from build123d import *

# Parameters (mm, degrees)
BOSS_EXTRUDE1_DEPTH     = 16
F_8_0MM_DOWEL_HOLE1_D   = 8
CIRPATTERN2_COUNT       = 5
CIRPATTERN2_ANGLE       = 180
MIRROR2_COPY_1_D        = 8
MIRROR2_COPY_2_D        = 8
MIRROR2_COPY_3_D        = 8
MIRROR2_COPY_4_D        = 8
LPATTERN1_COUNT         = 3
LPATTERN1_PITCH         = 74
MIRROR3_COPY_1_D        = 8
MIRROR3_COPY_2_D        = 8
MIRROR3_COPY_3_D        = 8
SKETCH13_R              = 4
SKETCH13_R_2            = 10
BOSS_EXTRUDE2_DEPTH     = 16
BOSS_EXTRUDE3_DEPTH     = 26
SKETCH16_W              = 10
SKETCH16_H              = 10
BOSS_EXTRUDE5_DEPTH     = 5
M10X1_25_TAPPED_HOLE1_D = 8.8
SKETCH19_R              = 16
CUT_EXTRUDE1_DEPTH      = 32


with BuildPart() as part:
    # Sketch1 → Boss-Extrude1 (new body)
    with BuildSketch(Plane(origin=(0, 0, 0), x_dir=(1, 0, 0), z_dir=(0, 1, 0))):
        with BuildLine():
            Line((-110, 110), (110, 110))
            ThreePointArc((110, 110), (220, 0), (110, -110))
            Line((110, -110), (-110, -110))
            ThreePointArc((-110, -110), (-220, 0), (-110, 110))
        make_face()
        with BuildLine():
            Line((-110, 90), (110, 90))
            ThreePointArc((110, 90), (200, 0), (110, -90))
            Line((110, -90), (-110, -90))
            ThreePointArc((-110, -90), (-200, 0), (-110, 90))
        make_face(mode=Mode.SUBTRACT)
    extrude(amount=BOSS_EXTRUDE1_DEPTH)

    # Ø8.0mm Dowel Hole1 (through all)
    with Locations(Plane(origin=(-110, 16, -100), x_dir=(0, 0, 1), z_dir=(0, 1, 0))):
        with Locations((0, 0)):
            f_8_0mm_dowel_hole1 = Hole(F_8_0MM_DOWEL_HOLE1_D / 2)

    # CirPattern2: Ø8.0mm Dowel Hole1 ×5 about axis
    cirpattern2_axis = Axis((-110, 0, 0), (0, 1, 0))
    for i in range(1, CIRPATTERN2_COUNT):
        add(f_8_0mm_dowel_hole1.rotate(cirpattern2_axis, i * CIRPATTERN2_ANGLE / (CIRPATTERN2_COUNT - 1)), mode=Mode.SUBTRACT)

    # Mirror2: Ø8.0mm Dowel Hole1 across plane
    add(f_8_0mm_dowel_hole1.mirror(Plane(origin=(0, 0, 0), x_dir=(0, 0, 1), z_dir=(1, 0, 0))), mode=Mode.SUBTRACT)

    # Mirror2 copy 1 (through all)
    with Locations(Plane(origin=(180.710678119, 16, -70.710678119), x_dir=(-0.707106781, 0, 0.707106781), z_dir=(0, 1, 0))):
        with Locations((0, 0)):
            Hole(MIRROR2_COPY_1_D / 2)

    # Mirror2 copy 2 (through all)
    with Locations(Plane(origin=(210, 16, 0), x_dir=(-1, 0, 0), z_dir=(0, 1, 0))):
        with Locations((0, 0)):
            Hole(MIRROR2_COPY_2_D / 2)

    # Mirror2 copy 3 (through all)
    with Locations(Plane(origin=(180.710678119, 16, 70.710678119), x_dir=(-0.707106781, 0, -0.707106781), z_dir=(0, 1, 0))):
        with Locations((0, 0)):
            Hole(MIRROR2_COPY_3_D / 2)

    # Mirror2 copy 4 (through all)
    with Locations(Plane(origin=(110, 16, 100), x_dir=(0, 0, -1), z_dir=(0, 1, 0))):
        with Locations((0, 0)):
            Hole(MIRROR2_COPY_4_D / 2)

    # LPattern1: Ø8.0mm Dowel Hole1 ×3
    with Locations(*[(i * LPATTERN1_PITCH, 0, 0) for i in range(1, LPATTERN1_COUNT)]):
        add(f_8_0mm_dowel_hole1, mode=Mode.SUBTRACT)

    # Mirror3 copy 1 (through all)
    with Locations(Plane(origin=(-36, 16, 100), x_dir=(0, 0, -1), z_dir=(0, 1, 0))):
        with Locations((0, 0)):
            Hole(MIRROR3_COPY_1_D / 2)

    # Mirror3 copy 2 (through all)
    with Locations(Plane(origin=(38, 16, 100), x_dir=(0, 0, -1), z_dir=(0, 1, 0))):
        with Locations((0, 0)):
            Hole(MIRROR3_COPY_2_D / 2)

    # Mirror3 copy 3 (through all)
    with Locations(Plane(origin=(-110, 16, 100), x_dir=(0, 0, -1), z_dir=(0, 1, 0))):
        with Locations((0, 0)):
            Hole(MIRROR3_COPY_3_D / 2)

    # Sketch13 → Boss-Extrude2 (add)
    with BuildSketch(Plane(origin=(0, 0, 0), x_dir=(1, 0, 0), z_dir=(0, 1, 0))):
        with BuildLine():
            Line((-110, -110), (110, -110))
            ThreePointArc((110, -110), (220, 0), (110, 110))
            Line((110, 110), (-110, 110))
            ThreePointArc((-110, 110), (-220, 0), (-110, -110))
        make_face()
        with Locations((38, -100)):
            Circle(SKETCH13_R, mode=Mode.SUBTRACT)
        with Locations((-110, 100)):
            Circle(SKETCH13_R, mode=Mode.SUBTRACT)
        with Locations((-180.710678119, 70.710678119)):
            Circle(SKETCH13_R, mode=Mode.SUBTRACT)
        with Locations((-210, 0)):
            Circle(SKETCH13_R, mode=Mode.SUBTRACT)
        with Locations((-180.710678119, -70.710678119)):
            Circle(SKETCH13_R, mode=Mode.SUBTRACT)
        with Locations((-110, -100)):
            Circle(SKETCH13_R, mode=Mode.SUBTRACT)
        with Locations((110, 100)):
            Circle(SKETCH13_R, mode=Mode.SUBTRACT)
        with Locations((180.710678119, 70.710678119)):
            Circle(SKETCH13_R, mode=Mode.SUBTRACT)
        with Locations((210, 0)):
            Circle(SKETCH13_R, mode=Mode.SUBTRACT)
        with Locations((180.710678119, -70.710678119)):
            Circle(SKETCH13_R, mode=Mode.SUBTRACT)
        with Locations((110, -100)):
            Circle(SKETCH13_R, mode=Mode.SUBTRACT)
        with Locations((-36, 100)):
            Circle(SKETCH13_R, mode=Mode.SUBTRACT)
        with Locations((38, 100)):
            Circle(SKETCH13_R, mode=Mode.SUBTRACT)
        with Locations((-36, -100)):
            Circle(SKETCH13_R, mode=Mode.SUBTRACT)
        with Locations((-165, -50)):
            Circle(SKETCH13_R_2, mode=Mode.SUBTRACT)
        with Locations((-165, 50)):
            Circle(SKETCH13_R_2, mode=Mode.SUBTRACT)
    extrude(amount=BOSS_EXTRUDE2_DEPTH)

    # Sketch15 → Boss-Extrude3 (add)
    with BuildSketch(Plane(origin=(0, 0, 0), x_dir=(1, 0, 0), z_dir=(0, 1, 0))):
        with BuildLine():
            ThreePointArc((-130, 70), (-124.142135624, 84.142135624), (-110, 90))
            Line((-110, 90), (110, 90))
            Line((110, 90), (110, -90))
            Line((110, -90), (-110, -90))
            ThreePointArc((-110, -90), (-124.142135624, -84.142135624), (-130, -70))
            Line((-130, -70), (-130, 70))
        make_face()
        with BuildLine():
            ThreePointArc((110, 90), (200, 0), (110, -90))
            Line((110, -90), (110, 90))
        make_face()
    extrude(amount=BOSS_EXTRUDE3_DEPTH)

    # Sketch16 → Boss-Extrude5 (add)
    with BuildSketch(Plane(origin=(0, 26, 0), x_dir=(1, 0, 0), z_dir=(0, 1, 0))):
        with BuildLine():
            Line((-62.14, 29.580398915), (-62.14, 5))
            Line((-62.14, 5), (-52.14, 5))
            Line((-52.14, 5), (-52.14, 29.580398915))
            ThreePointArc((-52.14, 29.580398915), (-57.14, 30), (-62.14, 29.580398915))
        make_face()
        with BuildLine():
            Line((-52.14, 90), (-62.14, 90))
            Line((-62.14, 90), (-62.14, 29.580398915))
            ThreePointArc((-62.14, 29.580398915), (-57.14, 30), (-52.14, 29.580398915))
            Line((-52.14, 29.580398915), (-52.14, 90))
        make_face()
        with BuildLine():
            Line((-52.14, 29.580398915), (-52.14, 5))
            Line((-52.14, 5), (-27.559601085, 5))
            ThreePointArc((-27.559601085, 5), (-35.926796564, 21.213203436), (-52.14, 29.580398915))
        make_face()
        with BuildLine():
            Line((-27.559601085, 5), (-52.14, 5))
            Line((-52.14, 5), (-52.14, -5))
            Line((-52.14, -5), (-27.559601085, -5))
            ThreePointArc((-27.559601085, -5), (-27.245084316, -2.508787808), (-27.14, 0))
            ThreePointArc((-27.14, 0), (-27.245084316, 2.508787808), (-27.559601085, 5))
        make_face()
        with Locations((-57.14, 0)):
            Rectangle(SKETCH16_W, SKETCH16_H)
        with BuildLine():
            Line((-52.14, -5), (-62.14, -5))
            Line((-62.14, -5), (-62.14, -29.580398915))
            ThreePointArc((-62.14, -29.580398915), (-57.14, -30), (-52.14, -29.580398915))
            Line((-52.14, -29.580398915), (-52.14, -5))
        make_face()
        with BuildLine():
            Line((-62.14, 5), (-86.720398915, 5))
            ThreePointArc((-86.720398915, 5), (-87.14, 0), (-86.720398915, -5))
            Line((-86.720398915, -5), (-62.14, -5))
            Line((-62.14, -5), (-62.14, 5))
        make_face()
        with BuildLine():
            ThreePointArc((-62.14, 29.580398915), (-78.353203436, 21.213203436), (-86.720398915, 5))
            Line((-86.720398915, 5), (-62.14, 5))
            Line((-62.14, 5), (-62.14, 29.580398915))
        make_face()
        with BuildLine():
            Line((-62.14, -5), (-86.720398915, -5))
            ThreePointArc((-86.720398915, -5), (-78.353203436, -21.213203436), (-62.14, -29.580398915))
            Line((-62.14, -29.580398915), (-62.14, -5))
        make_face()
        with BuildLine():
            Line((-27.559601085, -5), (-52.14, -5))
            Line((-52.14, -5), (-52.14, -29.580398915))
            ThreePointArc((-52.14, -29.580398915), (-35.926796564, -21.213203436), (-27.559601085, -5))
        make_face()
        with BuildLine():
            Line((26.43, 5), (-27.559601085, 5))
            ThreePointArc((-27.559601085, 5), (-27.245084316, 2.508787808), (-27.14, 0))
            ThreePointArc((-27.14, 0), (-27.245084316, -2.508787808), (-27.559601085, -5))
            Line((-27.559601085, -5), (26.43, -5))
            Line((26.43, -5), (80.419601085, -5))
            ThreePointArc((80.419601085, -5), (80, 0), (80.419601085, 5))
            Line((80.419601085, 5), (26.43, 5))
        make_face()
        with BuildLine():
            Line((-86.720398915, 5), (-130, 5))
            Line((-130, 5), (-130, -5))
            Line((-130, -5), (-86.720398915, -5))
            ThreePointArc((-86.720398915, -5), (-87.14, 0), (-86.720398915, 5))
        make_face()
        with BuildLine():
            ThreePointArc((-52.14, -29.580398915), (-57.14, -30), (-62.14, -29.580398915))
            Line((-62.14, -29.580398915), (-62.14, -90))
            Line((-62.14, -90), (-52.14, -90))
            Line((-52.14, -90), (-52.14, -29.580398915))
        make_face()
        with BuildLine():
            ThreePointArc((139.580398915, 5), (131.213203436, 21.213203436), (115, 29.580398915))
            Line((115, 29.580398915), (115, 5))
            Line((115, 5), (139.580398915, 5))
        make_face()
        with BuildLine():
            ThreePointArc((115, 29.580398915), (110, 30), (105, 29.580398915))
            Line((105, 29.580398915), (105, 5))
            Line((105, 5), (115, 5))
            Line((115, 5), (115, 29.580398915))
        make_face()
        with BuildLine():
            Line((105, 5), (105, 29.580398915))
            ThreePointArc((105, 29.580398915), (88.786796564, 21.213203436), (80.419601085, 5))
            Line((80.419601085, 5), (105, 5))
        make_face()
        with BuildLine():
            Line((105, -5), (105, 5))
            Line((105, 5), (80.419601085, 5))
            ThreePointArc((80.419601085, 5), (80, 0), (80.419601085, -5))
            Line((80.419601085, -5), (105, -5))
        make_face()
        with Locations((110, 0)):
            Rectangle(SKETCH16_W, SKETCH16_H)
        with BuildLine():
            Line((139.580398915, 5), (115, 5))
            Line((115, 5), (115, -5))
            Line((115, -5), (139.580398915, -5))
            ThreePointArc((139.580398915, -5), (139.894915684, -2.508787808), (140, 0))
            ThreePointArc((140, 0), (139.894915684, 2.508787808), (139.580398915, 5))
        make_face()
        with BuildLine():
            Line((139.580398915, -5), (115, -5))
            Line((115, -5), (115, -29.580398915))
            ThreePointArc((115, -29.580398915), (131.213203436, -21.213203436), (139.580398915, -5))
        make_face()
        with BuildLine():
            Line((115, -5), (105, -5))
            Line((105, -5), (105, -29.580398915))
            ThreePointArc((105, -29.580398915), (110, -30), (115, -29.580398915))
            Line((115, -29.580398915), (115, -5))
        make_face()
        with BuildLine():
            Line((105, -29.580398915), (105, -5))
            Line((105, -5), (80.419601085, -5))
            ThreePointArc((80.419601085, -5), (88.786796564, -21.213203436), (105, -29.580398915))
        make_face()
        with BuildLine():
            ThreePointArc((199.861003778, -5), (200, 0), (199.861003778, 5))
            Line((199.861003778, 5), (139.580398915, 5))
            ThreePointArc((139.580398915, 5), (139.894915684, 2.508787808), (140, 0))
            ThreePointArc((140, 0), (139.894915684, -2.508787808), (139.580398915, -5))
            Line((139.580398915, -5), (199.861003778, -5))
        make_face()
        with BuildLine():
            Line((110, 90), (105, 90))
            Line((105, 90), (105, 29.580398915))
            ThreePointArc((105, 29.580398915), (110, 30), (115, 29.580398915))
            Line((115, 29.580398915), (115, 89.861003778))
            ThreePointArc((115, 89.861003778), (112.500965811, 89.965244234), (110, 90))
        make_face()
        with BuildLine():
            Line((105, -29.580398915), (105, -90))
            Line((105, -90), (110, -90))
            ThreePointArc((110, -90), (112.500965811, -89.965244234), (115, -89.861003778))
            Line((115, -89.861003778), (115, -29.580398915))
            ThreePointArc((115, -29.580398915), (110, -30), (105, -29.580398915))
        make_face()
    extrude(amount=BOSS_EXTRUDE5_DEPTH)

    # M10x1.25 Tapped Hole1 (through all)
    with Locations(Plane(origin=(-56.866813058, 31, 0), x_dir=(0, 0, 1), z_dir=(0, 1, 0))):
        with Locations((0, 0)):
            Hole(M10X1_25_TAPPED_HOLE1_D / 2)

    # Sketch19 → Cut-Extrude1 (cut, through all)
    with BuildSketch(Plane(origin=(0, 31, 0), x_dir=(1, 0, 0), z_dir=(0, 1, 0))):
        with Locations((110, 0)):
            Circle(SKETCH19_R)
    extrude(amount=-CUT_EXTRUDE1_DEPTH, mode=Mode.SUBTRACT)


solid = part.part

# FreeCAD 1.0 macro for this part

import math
import FreeCAD as App
import Part
import Sketcher

V = App.Vector

doc = App.newDocument("Part")
params = doc.addObject("Spreadsheet::Sheet", "Params")
for row, (alias, value) in enumerate([
    ("sketch1_radius", "110 mm"),
    ("sketch1_radius2", "90 mm"),
    ("sketch1_width", "220 mm"),
    ("pad1_length", "16 mm"),
    ("sketch2_diameter", "8 mm"),
    ("hole_diameter", "8 mm"),
    ("sketch3_diameter", "8 mm"),
    ("hole2_diameter", "8 mm"),
    ("sketch4_diameter", "8 mm"),
    ("hole3_diameter", "8 mm"),
    ("sketch5_diameter", "8 mm"),
    ("hole4_diameter", "8 mm"),
    ("sketch6_diameter", "8 mm"),
    ("hole5_diameter", "8 mm"),
    ("linearpattern_pitch", "74 mm"),
    ("sketch7_diameter", "8 mm"),
    ("hole6_diameter", "8 mm"),
    ("sketch8_diameter", "8 mm"),
    ("hole7_diameter", "8 mm"),
    ("sketch9_diameter", "8 mm"),
    ("hole8_diameter", "8 mm"),
    ("sketch10_diameter", "8 mm"),
    ("sketch10_diameter2", "20 mm"),
    ("sketch10_radius", "110 mm"),
    ("sketch10_width", "220 mm"),
    ("pad2_length", "16 mm"),
    ("sketch11_radius", "20 mm"),
    ("sketch11_radius2", "90 mm"),
    ("sketch11_width", "220 mm"),
    ("pad3_length", "26 mm"),
    ("sketch12_radius", "30 mm"),
    ("sketch12_radius2", "89.999999 mm"),
    ("sketch12_width", "10 mm"),
    ("pad4_length", "5 mm"),
    ("sketch13_diameter", "8.8 mm"),
    ("hole9_diameter", "8.8 mm"),
    ("sketch14_diameter", "32 mm"),
], start=1):
    params.set(f"A{row}", alias)
    params.set(f"B{row}", "=" + value)
    params.setAlias(f"B{row}", alias)

body = doc.addObject("PartDesign::Body", "Body")

# Sketch on XZ plane
sketch1 = doc.addObject("Sketcher::SketchObject", "Sketch")
body.addObject(sketch1)
sketch1.AttachmentSupport = (doc.XZ_Plane, [""])
sketch1.MapMode = "FlatFace"
sketch1.addGeometry(Part.LineSegment(V(110, -110, 0), V(-110, -110, 0)), False)
sketch1.addGeometry(Part.ArcOfCircle(Part.Circle(V(-110, 0, 0), V(0, 0, 1), 110), math.radians(90), math.radians(270)), False)
sketch1.addGeometry(Part.LineSegment(V(-110, 110, 0), V(110, 110, 0)), False)
sketch1.addGeometry(Part.ArcOfCircle(Part.Circle(V(110, 0, 0), V(0, 0, 1), 110), math.radians(-90), math.radians(90)), False)
sketch1.addGeometry(Part.LineSegment(V(-110, -90, 0), V(110, -90, 0)), False)
sketch1.addGeometry(Part.ArcOfCircle(Part.Circle(V(110, 0, 0), V(0, 0, 1), 90), math.radians(-90), math.radians(90)), False)
sketch1.addGeometry(Part.LineSegment(V(110, 90, 0), V(-110, 90, 0)), False)
sketch1.addGeometry(Part.ArcOfCircle(Part.Circle(V(-110, 0, 0), V(0, 0, 1), 90), math.radians(90), math.radians(270)), False)
sketch1.addConstraint(Sketcher.Constraint("Tangent", 0, 2, 1, 2))
sketch1.addConstraint(Sketcher.Constraint("Tangent", 1, 1, 2, 1))
sketch1.addConstraint(Sketcher.Constraint("Tangent", 2, 2, 3, 2))
sketch1.addConstraint(Sketcher.Constraint("Tangent", 3, 1, 0, 1))
sketch1.addConstraint(Sketcher.Constraint("Tangent", 4, 2, 5, 1))
sketch1.addConstraint(Sketcher.Constraint("Tangent", 5, 2, 6, 1))
sketch1.addConstraint(Sketcher.Constraint("Tangent", 6, 2, 7, 1))
sketch1.addConstraint(Sketcher.Constraint("Tangent", 7, 2, 4, 1))
sketch1.addConstraint(Sketcher.Constraint("Horizontal", 0))
sketch1.addConstraint(Sketcher.Constraint("Horizontal", 2))
sketch1.addConstraint(Sketcher.Constraint("Horizontal", 4))
sketch1.addConstraint(Sketcher.Constraint("Horizontal", 6))
sketch1.addConstraint(Sketcher.Constraint("Coincident", 5, 3, 3, 3))
sketch1.addConstraint(Sketcher.Constraint("Symmetric", 1, 3, 3, 3, -1, 1))
sketch1.addConstraint(Sketcher.Constraint("Vertical", 7, 3, 0, 2))
sketch1.addConstraint(Sketcher.Constraint("Radius", 1, 110.0))
sketch1.addConstraint(Sketcher.Constraint("Radius", 5, 90.0))
sketch1.addConstraint(Sketcher.Constraint("DistanceX", 0, 2, 0, 1, 220.0))
sketch1.setExpression("Constraints[15]", "Params.sketch1_radius")
sketch1.setExpression("Constraints[16]", "Params.sketch1_radius2")
sketch1.setExpression("Constraints[17]", "Params.sketch1_width")
pad1 = doc.addObject("PartDesign::Pad", "Pad")
body.addObject(pad1)
pad1.Profile = sketch1
pad1.setExpression("Length", "Params.pad1_length")
pad1.Reversed = True

# Sketch on XZ plane
sketch2 = doc.addObject("Sketcher::SketchObject", "Sketch001")
body.addObject(sketch2)
sketch2.AttachmentSupport = (doc.XZ_Plane, [""])
sketch2.MapMode = "FlatFace"
sketch2.AttachmentOffset = App.Placement(V(0, 0, -16), App.Rotation())
sketch2.addGeometry(Part.Circle(V(-110, -100, 0), V(0, 0, 1), 4), False)
sketch2.addConstraint(Sketcher.Constraint("Diameter", 0, 8.0))
sketch2.addConstraint(Sketcher.Constraint("DistanceX", 0, 3, -1, 1, 110.0))
sketch2.addConstraint(Sketcher.Constraint("DistanceY", 0, 3, -1, 1, 100.0))
sketch2.setExpression("Constraints[0]", "Params.sketch2_diameter")
doc.recompute()
hole = doc.addObject("PartDesign::Hole", "Hole")
body.addObject(hole)
hole.Profile = sketch2
hole.ThreadType = "None"
hole.setExpression("Diameter", "Params.hole_diameter")
hole.DepthType = "ThroughAll"
hole.Reversed = True
doc.recompute()

datumline = doc.addObject("PartDesign::Line", "DatumLine")
body.addObject(datumline)
datumline.Placement = App.Placement(V(-110, 0, 0), App.Rotation(V(0, 0, 1), V(0, 1, 0)))
polarpattern = doc.addObject("PartDesign::PolarPattern", "PolarPattern")
body.addObject(polarpattern)
polarpattern.Originals = [hole]
polarpattern.Axis = (datumline, [""])
polarpattern.Angle = 180
polarpattern.Occurrences = 5
body.Tip = polarpattern
doc.recompute()

mirrored = doc.addObject("PartDesign::Mirrored", "Mirrored")
body.addObject(mirrored)
mirrored.Originals = [hole]
mirrored.MirrorPlane = (doc.YZ_Plane, [""])
body.Tip = mirrored

# Sketch on XZ plane
sketch3 = doc.addObject("Sketcher::SketchObject", "Sketch002")
body.addObject(sketch3)
sketch3.AttachmentSupport = (doc.XZ_Plane, [""])
sketch3.MapMode = "FlatFace"
sketch3.AttachmentOffset = App.Placement(V(0, 0, -16), App.Rotation())
sketch3.addGeometry(Part.Circle(V(180.710678, -70.710678, 0), V(0, 0, 1), 4), False)
sketch3.addConstraint(Sketcher.Constraint("Diameter", 0, 8.0))
sketch3.addConstraint(Sketcher.Constraint("DistanceX", -1, 1, 0, 3, 180.710678))
sketch3.addConstraint(Sketcher.Constraint("DistanceY", 0, 3, -1, 1, 70.710678))
sketch3.setExpression("Constraints[0]", "Params.sketch3_diameter")
doc.recompute()
hole2 = doc.addObject("PartDesign::Hole", "Hole001")
body.addObject(hole2)
hole2.Profile = sketch3
hole2.ThreadType = "None"
hole2.setExpression("Diameter", "Params.hole2_diameter")
hole2.DepthType = "ThroughAll"
hole2.Reversed = True

# Sketch on XZ plane
sketch4 = doc.addObject("Sketcher::SketchObject", "Sketch003")
body.addObject(sketch4)
sketch4.AttachmentSupport = (doc.XZ_Plane, [""])
sketch4.MapMode = "FlatFace"
sketch4.AttachmentOffset = App.Placement(V(0, 0, -16), App.Rotation())
sketch4.addGeometry(Part.Circle(V(210, 0, 0), V(0, 0, 1), 4), False)
sketch4.addConstraint(Sketcher.Constraint("PointOnObject", 0, 3, -1))
sketch4.addConstraint(Sketcher.Constraint("Diameter", 0, 8.0))
sketch4.addConstraint(Sketcher.Constraint("DistanceX", -1, 1, 0, 3, 210.0))
sketch4.setExpression("Constraints[1]", "Params.sketch4_diameter")
doc.recompute()
hole3 = doc.addObject("PartDesign::Hole", "Hole002")
body.addObject(hole3)
hole3.Profile = sketch4
hole3.ThreadType = "None"
hole3.setExpression("Diameter", "Params.hole3_diameter")
hole3.DepthType = "ThroughAll"
hole3.Reversed = True

# Sketch on XZ plane
sketch5 = doc.addObject("Sketcher::SketchObject", "Sketch004")
body.addObject(sketch5)
sketch5.AttachmentSupport = (doc.XZ_Plane, [""])
sketch5.MapMode = "FlatFace"
sketch5.AttachmentOffset = App.Placement(V(0, 0, -16), App.Rotation())
sketch5.addGeometry(Part.Circle(V(180.710678, 70.710678, 0), V(0, 0, 1), 4), False)
sketch5.addConstraint(Sketcher.Constraint("Diameter", 0, 8.0))
sketch5.addConstraint(Sketcher.Constraint("DistanceX", -1, 1, 0, 3, 180.710678))
sketch5.addConstraint(Sketcher.Constraint("DistanceY", -1, 1, 0, 3, 70.710678))
sketch5.setExpression("Constraints[0]", "Params.sketch5_diameter")
doc.recompute()
hole4 = doc.addObject("PartDesign::Hole", "Hole003")
body.addObject(hole4)
hole4.Profile = sketch5
hole4.ThreadType = "None"
hole4.setExpression("Diameter", "Params.hole4_diameter")
hole4.DepthType = "ThroughAll"
hole4.Reversed = True

# Sketch on XZ plane
sketch6 = doc.addObject("Sketcher::SketchObject", "Sketch005")
body.addObject(sketch6)
sketch6.AttachmentSupport = (doc.XZ_Plane, [""])
sketch6.MapMode = "FlatFace"
sketch6.AttachmentOffset = App.Placement(V(0, 0, -16), App.Rotation())
sketch6.addGeometry(Part.Circle(V(110, 100, 0), V(0, 0, 1), 4), False)
sketch6.addConstraint(Sketcher.Constraint("Diameter", 0, 8.0))
sketch6.addConstraint(Sketcher.Constraint("DistanceX", -1, 1, 0, 3, 110.0))
sketch6.addConstraint(Sketcher.Constraint("DistanceY", -1, 1, 0, 3, 100.0))
sketch6.setExpression("Constraints[0]", "Params.sketch6_diameter")
doc.recompute()
hole5 = doc.addObject("PartDesign::Hole", "Hole004")
body.addObject(hole5)
hole5.Profile = sketch6
hole5.ThreadType = "None"
hole5.setExpression("Diameter", "Params.hole5_diameter")
hole5.DepthType = "ThroughAll"
hole5.Reversed = True
doc.recompute()

linearpattern = doc.addObject("PartDesign::LinearPattern", "LinearPattern")
body.addObject(linearpattern)
linearpattern.Originals = [hole]
linearpattern.Direction = (doc.X_Axis, [""])
linearpattern.Mode = "offset"
linearpattern.setExpression("Offset", "Params.linearpattern_pitch")
linearpattern.Occurrences = 3
body.Tip = linearpattern

# Sketch on XZ plane
sketch7 = doc.addObject("Sketcher::SketchObject", "Sketch006")
body.addObject(sketch7)
sketch7.AttachmentSupport = (doc.XZ_Plane, [""])
sketch7.MapMode = "FlatFace"
sketch7.AttachmentOffset = App.Placement(V(0, 0, -16), App.Rotation())
sketch7.addGeometry(Part.Circle(V(-36, 100, 0), V(0, 0, 1), 4), False)
sketch7.addConstraint(Sketcher.Constraint("Diameter", 0, 8.0))
sketch7.addConstraint(Sketcher.Constraint("DistanceX", 0, 3, -1, 1, 36.0))
sketch7.addConstraint(Sketcher.Constraint("DistanceY", -1, 1, 0, 3, 100.0))
sketch7.setExpression("Constraints[0]", "Params.sketch7_diameter")
doc.recompute()
hole6 = doc.addObject("PartDesign::Hole", "Hole005")
body.addObject(hole6)
hole6.Profile = sketch7
hole6.ThreadType = "None"
hole6.setExpression("Diameter", "Params.hole6_diameter")
hole6.DepthType = "ThroughAll"
hole6.Reversed = True

# Sketch on XZ plane
sketch8 = doc.addObject("Sketcher::SketchObject", "Sketch007")
body.addObject(sketch8)
sketch8.AttachmentSupport = (doc.XZ_Plane, [""])
sketch8.MapMode = "FlatFace"
sketch8.AttachmentOffset = App.Placement(V(0, 0, -16), App.Rotation())
sketch8.addGeometry(Part.Circle(V(38, 100, 0), V(0, 0, 1), 4), False)
sketch8.addConstraint(Sketcher.Constraint("Diameter", 0, 8.0))
sketch8.addConstraint(Sketcher.Constraint("DistanceX", -1, 1, 0, 3, 38.0))
sketch8.addConstraint(Sketcher.Constraint("DistanceY", -1, 1, 0, 3, 100.0))
sketch8.setExpression("Constraints[0]", "Params.sketch8_diameter")
doc.recompute()
hole7 = doc.addObject("PartDesign::Hole", "Hole006")
body.addObject(hole7)
hole7.Profile = sketch8
hole7.ThreadType = "None"
hole7.setExpression("Diameter", "Params.hole7_diameter")
hole7.DepthType = "ThroughAll"
hole7.Reversed = True

# Sketch on XZ plane
sketch9 = doc.addObject("Sketcher::SketchObject", "Sketch008")
body.addObject(sketch9)
sketch9.AttachmentSupport = (doc.XZ_Plane, [""])
sketch9.MapMode = "FlatFace"
sketch9.AttachmentOffset = App.Placement(V(0, 0, -16), App.Rotation())
sketch9.addGeometry(Part.Circle(V(-110, 100, 0), V(0, 0, 1), 4), False)
sketch9.addConstraint(Sketcher.Constraint("Diameter", 0, 8.0))
sketch9.addConstraint(Sketcher.Constraint("DistanceX", 0, 3, -1, 1, 110.0))
sketch9.addConstraint(Sketcher.Constraint("DistanceY", -1, 1, 0, 3, 100.0))
sketch9.setExpression("Constraints[0]", "Params.sketch9_diameter")
doc.recompute()
hole8 = doc.addObject("PartDesign::Hole", "Hole007")
body.addObject(hole8)
hole8.Profile = sketch9
hole8.ThreadType = "None"
hole8.setExpression("Diameter", "Params.hole8_diameter")
hole8.DepthType = "ThroughAll"
hole8.Reversed = True

# Sketch on XZ plane
sketch10 = doc.addObject("Sketcher::SketchObject", "Sketch009")
body.addObject(sketch10)
sketch10.AttachmentSupport = (doc.XZ_Plane, [""])
sketch10.MapMode = "FlatFace"
sketch10.addGeometry(Part.LineSegment(V(-110, 110, 0), V(110, 110, 0)), False)
sketch10.addGeometry(Part.ArcOfCircle(Part.Circle(V(110, 0, 0), V(0, 0, 1), 110), math.radians(-90), math.radians(90)), False)
sketch10.addGeometry(Part.LineSegment(V(110, -110, 0), V(-110, -110, 0)), False)
sketch10.addGeometry(Part.ArcOfCircle(Part.Circle(V(-110, 0, 0), V(0, 0, 1), 110), math.radians(90), math.radians(270)), False)
sketch10.addGeometry(Part.Circle(V(-110, 100, 0), V(0, 0, 1), 4), False)
sketch10.addGeometry(Part.Circle(V(-180.710678, 70.710678, 0), V(0, 0, 1), 4), False)
sketch10.addGeometry(Part.Circle(V(-36, 100, 0), V(0, 0, 1), 4), False)
sketch10.addGeometry(Part.Circle(V(-165, 50, 0), V(0, 0, 1), 10), False)
sketch10.addGeometry(Part.Circle(V(38, 100, 0), V(0, 0, 1), 4), False)
sketch10.addGeometry(Part.Circle(V(110, 100, 0), V(0, 0, 1), 4), False)
sketch10.addGeometry(Part.Circle(V(180.710678, 70.710678, 0), V(0, 0, 1), 4), False)
sketch10.addGeometry(Part.Circle(V(-210, 0, 0), V(0, 0, 1), 4), False)
sketch10.addGeometry(Part.Circle(V(-165, -50, 0), V(0, 0, 1), 10), False)
sketch10.addGeometry(Part.Circle(V(-180.710678, -70.710678, 0), V(0, 0, 1), 4), False)
sketch10.addGeometry(Part.Circle(V(-110, -100, 0), V(0, 0, 1), 4), False)
sketch10.addGeometry(Part.Circle(V(-36, -100, 0), V(0, 0, 1), 4), False)
sketch10.addGeometry(Part.Circle(V(210, 0, 0), V(0, 0, 1), 4), False)
sketch10.addGeometry(Part.Circle(V(38, -100, 0), V(0, 0, 1), 4), False)
sketch10.addGeometry(Part.Circle(V(180.710678, -70.710678, 0), V(0, 0, 1), 4), False)
sketch10.addGeometry(Part.Circle(V(110, -100, 0), V(0, 0, 1), 4), False)
sketch10.addConstraint(Sketcher.Constraint("Tangent", 0, 2, 1, 2))
sketch10.addConstraint(Sketcher.Constraint("Tangent", 1, 1, 2, 1))
sketch10.addConstraint(Sketcher.Constraint("Tangent", 2, 2, 3, 2))
sketch10.addConstraint(Sketcher.Constraint("Tangent", 3, 1, 0, 1))
sketch10.addConstraint(Sketcher.Constraint("Horizontal", 0))
sketch10.addConstraint(Sketcher.Constraint("Horizontal", 2))
sketch10.addConstraint(Sketcher.Constraint("Equal", 4, 5))
sketch10.addConstraint(Sketcher.Constraint("Equal", 5, 6))
sketch10.addConstraint(Sketcher.Constraint("Equal", 6, 8))
sketch10.addConstraint(Sketcher.Constraint("Equal", 8, 9))
sketch10.addConstraint(Sketcher.Constraint("Equal", 9, 10))
sketch10.addConstraint(Sketcher.Constraint("Equal", 10, 11))
sketch10.addConstraint(Sketcher.Constraint("Equal", 7, 12))
sketch10.addConstraint(Sketcher.Constraint("Equal", 11, 13))
sketch10.addConstraint(Sketcher.Constraint("Equal", 13, 14))
sketch10.addConstraint(Sketcher.Constraint("Equal", 14, 15))
sketch10.addConstraint(Sketcher.Constraint("Equal", 15, 16))
sketch10.addConstraint(Sketcher.Constraint("Equal", 16, 17))
sketch10.addConstraint(Sketcher.Constraint("Equal", 17, 18))
sketch10.addConstraint(Sketcher.Constraint("Equal", 18, 19))
sketch10.addConstraint(Sketcher.Constraint("Symmetric", 1, 3, 3, 3, -1, 1))
sketch10.addConstraint(Sketcher.Constraint("Symmetric", 10, 3, 13, 3, -1, 1))
sketch10.addConstraint(Sketcher.Constraint("Symmetric", 9, 3, 14, 3, -1, 1))
sketch10.addConstraint(Sketcher.Constraint("Symmetric", 11, 3, 16, 3, -1, 1))
sketch10.addConstraint(Sketcher.Constraint("Symmetric", 5, 3, 18, 3, -1, 1))
sketch10.addConstraint(Sketcher.Constraint("Symmetric", 4, 3, 19, 3, -1, 1))
sketch10.addConstraint(Sketcher.Constraint("Symmetric", 4, 3, 9, 3, -2))
sketch10.addConstraint(Sketcher.Constraint("Symmetric", 5, 3, 10, 3, -2))
sketch10.addConstraint(Sketcher.Constraint("Symmetric", 7, 3, 12, 3, -1))
sketch10.addConstraint(Sketcher.Constraint("Symmetric", 6, 3, 15, 3, -1))
sketch10.addConstraint(Sketcher.Constraint("Symmetric", 8, 3, 17, 3, -1))
sketch10.addConstraint(Sketcher.Constraint("PointOnObject", 11, 3, -1))
sketch10.addConstraint(Sketcher.Constraint("Horizontal", 4, 3, 6, 3))
sketch10.addConstraint(Sketcher.Constraint("Horizontal", 6, 3, 8, 3))
sketch10.addConstraint(Sketcher.Constraint("Vertical", 3, 3, 4, 3))
sketch10.addConstraint(Sketcher.Constraint("Diameter", 4, 8.0))
sketch10.addConstraint(Sketcher.Constraint("Diameter", 7, 20.0))
sketch10.addConstraint(Sketcher.Constraint("Radius", 1, 110.0))
sketch10.addConstraint(Sketcher.Constraint("DistanceX", 0, 1, 0, 2, 220.0))
sketch10.addConstraint(Sketcher.Constraint("DistanceY", -1, 1, 4, 3, 100.0))
sketch10.addConstraint(Sketcher.Constraint("DistanceX", 6, 3, -1, 1, 36.0))
sketch10.addConstraint(Sketcher.Constraint("DistanceX", 7, 3, -1, 1, 165.0))
sketch10.addConstraint(Sketcher.Constraint("DistanceY", -1, 1, 7, 3, 50.0))
sketch10.addConstraint(Sketcher.Constraint("DistanceX", -1, 1, 8, 3, 38.0))
sketch10.addConstraint(Sketcher.Constraint("DistanceX", 11, 3, -1, 1, 210.0))
sketch10.addConstraint(Sketcher.Constraint("DistanceX", 5, 3, -1, 1, 180.710678))
sketch10.addConstraint(Sketcher.Constraint("DistanceY", -1, 1, 5, 3, 70.710678))
sketch10.setExpression("Constraints[35]", "Params.sketch10_diameter")
sketch10.setExpression("Constraints[36]", "Params.sketch10_diameter2")
sketch10.setExpression("Constraints[37]", "Params.sketch10_radius")
sketch10.setExpression("Constraints[38]", "Params.sketch10_width")
pad2 = doc.addObject("PartDesign::Pad", "Pad001")
body.addObject(pad2)
pad2.Profile = sketch10
pad2.setExpression("Length", "Params.pad2_length")
pad2.Reversed = True

# Sketch on XZ plane
sketch11 = doc.addObject("Sketcher::SketchObject", "Sketch010")
body.addObject(sketch11)
sketch11.AttachmentSupport = (doc.XZ_Plane, [""])
sketch11.MapMode = "FlatFace"
sketch11.addGeometry(Part.ArcOfCircle(Part.Circle(V(-110, -70, 0), V(0, 0, 1), 20), math.radians(180), math.radians(270)), False)
sketch11.addGeometry(Part.LineSegment(V(-130, -70, 0), V(-130, 70, 0)), False)
sketch11.addGeometry(Part.ArcOfCircle(Part.Circle(V(-110, 70, 0), V(0, 0, 1), 20), math.radians(90), math.radians(180)), False)
sketch11.addGeometry(Part.LineSegment(V(-110, 90, 0), V(110, 90, 0)), False)
sketch11.addGeometry(Part.ArcOfCircle(Part.Circle(V(110, 0, 0), V(0, 0, 1), 90), math.radians(-90), math.radians(90)), False)
sketch11.addGeometry(Part.LineSegment(V(110, -90, 0), V(-110, -90, 0)), False)
sketch11.addConstraint(Sketcher.Constraint("Tangent", 0, 1, 1, 1))
sketch11.addConstraint(Sketcher.Constraint("Tangent", 1, 2, 2, 2))
sketch11.addConstraint(Sketcher.Constraint("Tangent", 2, 1, 3, 1))
sketch11.addConstraint(Sketcher.Constraint("Tangent", 3, 2, 4, 2))
sketch11.addConstraint(Sketcher.Constraint("Tangent", 4, 1, 5, 1))
sketch11.addConstraint(Sketcher.Constraint("Tangent", 5, 2, 0, 2))
sketch11.addConstraint(Sketcher.Constraint("Vertical", 1))
sketch11.addConstraint(Sketcher.Constraint("Horizontal", 3))
sketch11.addConstraint(Sketcher.Constraint("Horizontal", 5))
sketch11.addConstraint(Sketcher.Constraint("Equal", 0, 2))
sketch11.addConstraint(Sketcher.Constraint("Symmetric", 2, 1, 4, 1, -1, 1))
sketch11.addConstraint(Sketcher.Constraint("Radius", 0, 20.0))
sketch11.addConstraint(Sketcher.Constraint("Radius", 4, 90.0))
sketch11.addConstraint(Sketcher.Constraint("DistanceX", 3, 1, 3, 2, 220.0))
sketch11.setExpression("Constraints[11]", "Params.sketch11_radius")
sketch11.setExpression("Constraints[12]", "Params.sketch11_radius2")
sketch11.setExpression("Constraints[13]", "Params.sketch11_width")
pad3 = doc.addObject("PartDesign::Pad", "Pad002")
body.addObject(pad3)
pad3.Profile = sketch11
pad3.setExpression("Length", "Params.pad3_length")
pad3.Reversed = True

# Sketch on XZ plane
sketch12 = doc.addObject("Sketcher::SketchObject", "Sketch011")
body.addObject(sketch12)
sketch12.AttachmentSupport = (doc.XZ_Plane, [""])
sketch12.MapMode = "FlatFace"
sketch12.AttachmentOffset = App.Placement(V(0, 0, -26), App.Rotation())
sketch12.addGeometry(Part.ArcOfCircle(Part.Circle(V(-57.14, 0, 0), V(0, 0, 1), 30), math.radians(-80.405932), math.radians(-9.594068)), False)
sketch12.addGeometry(Part.LineSegment(V(-52.14, -29.580399, 0), V(-52.14, -90, 0)), False)
sketch12.addGeometry(Part.LineSegment(V(-52.14, -90, 0), V(-62.14, -90, 0)), False)
sketch12.addGeometry(Part.LineSegment(V(-62.14, -90, 0), V(-62.14, -29.580399, 0)), False)
sketch12.addGeometry(Part.ArcOfCircle(Part.Circle(V(-57.14, 0, 0), V(0, 0, 1), 30), math.radians(-170.405932), math.radians(-99.594068)), False)
sketch12.addGeometry(Part.LineSegment(V(-86.720399, -5, 0), V(-130, -5, 0)), False)
sketch12.addGeometry(Part.LineSegment(V(-130, -5, 0), V(-130, 5, 0)), False)
sketch12.addGeometry(Part.LineSegment(V(-130, 5, 0), V(-86.720399, 5, 0)), False)
sketch12.addGeometry(Part.ArcOfCircle(Part.Circle(V(-57.14, 0, 0), V(0, 0, 1), 30), math.radians(99.594068), math.radians(170.405932)), False)
sketch12.addGeometry(Part.LineSegment(V(-62.14, 29.580399, 0), V(-62.14, 90, 0)), False)
sketch12.addGeometry(Part.LineSegment(V(-62.14, 90, 0), V(-52.14, 90, 0)), False)
sketch12.addGeometry(Part.LineSegment(V(-52.14, 90, 0), V(-52.14, 29.580399, 0)), False)
sketch12.addGeometry(Part.ArcOfCircle(Part.Circle(V(-57.14, 0, 0), V(0, 0, 1), 30), math.radians(9.594068), math.radians(80.405932)), False)
sketch12.addGeometry(Part.LineSegment(V(-27.559601, 5, 0), V(80.419601, 5, 0)), False)
sketch12.addGeometry(Part.ArcOfCircle(Part.Circle(V(110, 0, 0), V(0, 0, 1), 30), math.radians(99.594068), math.radians(170.405932)), False)
sketch12.addGeometry(Part.LineSegment(V(105, 29.580399, 0), V(105, 90, 0)), False)
sketch12.addGeometry(Part.LineSegment(V(105, 90, 0), V(110, 90, 0)), False)
sketch12.addGeometry(Part.ArcOfCircle(Part.Circle(V(110, 0.000001, 0), V(0, 0, 1), 89.999999), math.radians(86.815261), math.radians(90)), False)
sketch12.addGeometry(Part.LineSegment(V(115, 89.861004, 0), V(115, 29.580399, 0)), False)
sketch12.addGeometry(Part.ArcOfCircle(Part.Circle(V(110, 0, 0), V(0, 0, 1), 30), math.radians(9.594068), math.radians(80.405932)), False)
sketch12.addGeometry(Part.LineSegment(V(139.580399, 5, 0), V(199.861004, 5, 0)), False)
sketch12.addGeometry(Part.ArcOfCircle(Part.Circle(V(110, 0, 0), V(0, 0, 1), 90), math.radians(-3.184739), math.radians(3.184739)), False)
sketch12.addGeometry(Part.LineSegment(V(199.861004, -5, 0), V(139.580399, -5, 0)), False)
sketch12.addGeometry(Part.ArcOfCircle(Part.Circle(V(110, 0, 0), V(0, 0, 1), 30), math.radians(-80.405932), math.radians(-9.594068)), False)
sketch12.addGeometry(Part.LineSegment(V(115, -29.580399, 0), V(115, -89.861004, 0)), False)
sketch12.addGeometry(Part.ArcOfCircle(Part.Circle(V(110, -0.000001, 0), V(0, 0, 1), 89.999999), math.radians(-90), math.radians(-86.815261)), False)
sketch12.addGeometry(Part.LineSegment(V(110, -90, 0), V(105, -90, 0)), False)
sketch12.addGeometry(Part.LineSegment(V(105, -90, 0), V(105, -29.580399, 0)), False)
sketch12.addGeometry(Part.ArcOfCircle(Part.Circle(V(110, 0, 0), V(0, 0, 1), 30), math.radians(-170.405932), math.radians(-99.594068)), False)
sketch12.addGeometry(Part.LineSegment(V(80.419601, -5, 0), V(-27.559601, -5, 0)), False)
sketch12.addConstraint(Sketcher.Constraint("Coincident", 0, 1, 1, 1))
sketch12.addConstraint(Sketcher.Constraint("Coincident", 1, 2, 2, 1))
sketch12.addConstraint(Sketcher.Constraint("Coincident", 2, 2, 3, 1))
sketch12.addConstraint(Sketcher.Constraint("Coincident", 3, 2, 4, 2))
sketch12.addConstraint(Sketcher.Constraint("Coincident", 4, 1, 5, 1))
sketch12.addConstraint(Sketcher.Constraint("Coincident", 5, 2, 6, 1))
sketch12.addConstraint(Sketcher.Constraint("Coincident", 6, 2, 7, 1))
sketch12.addConstraint(Sketcher.Constraint("Coincident", 7, 2, 8, 2))
sketch12.addConstraint(Sketcher.Constraint("Coincident", 8, 1, 9, 1))
sketch12.addConstraint(Sketcher.Constraint("Coincident", 9, 2, 10, 1))
sketch12.addConstraint(Sketcher.Constraint("Coincident", 10, 2, 11, 1))
sketch12.addConstraint(Sketcher.Constraint("Coincident", 11, 2, 12, 2))
sketch12.addConstraint(Sketcher.Constraint("Coincident", 12, 1, 13, 1))
sketch12.addConstraint(Sketcher.Constraint("Coincident", 13, 2, 14, 2))
sketch12.addConstraint(Sketcher.Constraint("Coincident", 14, 1, 15, 1))
sketch12.addConstraint(Sketcher.Constraint("Coincident", 15, 2, 16, 1))
sketch12.addConstraint(Sketcher.Constraint("Tangent", 16, 2, 17, 2))
sketch12.addConstraint(Sketcher.Constraint("Coincident", 17, 1, 18, 1))
sketch12.addConstraint(Sketcher.Constraint("Coincident", 18, 2, 19, 2))
sketch12.addConstraint(Sketcher.Constraint("Coincident", 19, 1, 20, 1))
sketch12.addConstraint(Sketcher.Constraint("Coincident", 20, 2, 21, 2))
sketch12.addConstraint(Sketcher.Constraint("Coincident", 21, 1, 22, 1))
sketch12.addConstraint(Sketcher.Constraint("Coincident", 22, 2, 23, 2))
sketch12.addConstraint(Sketcher.Constraint("Coincident", 23, 1, 24, 1))
sketch12.addConstraint(Sketcher.Constraint("Coincident", 24, 2, 25, 2))
sketch12.addConstraint(Sketcher.Constraint("Tangent", 25, 1, 26, 1))
sketch12.addConstraint(Sketcher.Constraint("Coincident", 26, 2, 27, 1))
sketch12.addConstraint(Sketcher.Constraint("Coincident", 27, 2, 28, 2))
sketch12.addConstraint(Sketcher.Constraint("Coincident", 28, 1, 29, 1))
sketch12.addConstraint(Sketcher.Constraint("Coincident", 29, 2, 0, 2))
sketch12.addConstraint(Sketcher.Constraint("Vertical", 1))
sketch12.addConstraint(Sketcher.Constraint("Horizontal", 2))
sketch12.addConstraint(Sketcher.Constraint("Vertical", 3))
sketch12.addConstraint(Sketcher.Constraint("Horizontal", 5))
sketch12.addConstraint(Sketcher.Constraint("Vertical", 6))
sketch12.addConstraint(Sketcher.Constraint("Horizontal", 7))
sketch12.addConstraint(Sketcher.Constraint("Vertical", 9))
sketch12.addConstraint(Sketcher.Constraint("Horizontal", 10))
sketch12.addConstraint(Sketcher.Constraint("Vertical", 11))
sketch12.addConstraint(Sketcher.Constraint("Horizontal", 13))
sketch12.addConstraint(Sketcher.Constraint("Vertical", 15))
sketch12.addConstraint(Sketcher.Constraint("Horizontal", 16))
sketch12.addConstraint(Sketcher.Constraint("Vertical", 18))
sketch12.addConstraint(Sketcher.Constraint("Horizontal", 20))
sketch12.addConstraint(Sketcher.Constraint("Horizontal", 22))
sketch12.addConstraint(Sketcher.Constraint("Vertical", 24))
sketch12.addConstraint(Sketcher.Constraint("Horizontal", 26))
sketch12.addConstraint(Sketcher.Constraint("Vertical", 27))
sketch12.addConstraint(Sketcher.Constraint("Horizontal", 29))
sketch12.addConstraint(Sketcher.Constraint("Coincident", 4, 3, 0, 3))
sketch12.addConstraint(Sketcher.Constraint("Coincident", 8, 3, 0, 3))
sketch12.addConstraint(Sketcher.Constraint("Coincident", 12, 3, 0, 3))
sketch12.addConstraint(Sketcher.Constraint("Coincident", 17, 3, 14, 3))
sketch12.addConstraint(Sketcher.Constraint("Coincident", 19, 3, 14, 3))
sketch12.addConstraint(Sketcher.Constraint("Coincident", 21, 3, 14, 3))
sketch12.addConstraint(Sketcher.Constraint("Coincident", 23, 3, 14, 3))
sketch12.addConstraint(Sketcher.Constraint("Coincident", 25, 3, 14, 3))
sketch12.addConstraint(Sketcher.Constraint("Coincident", 28, 3, 14, 3))
sketch12.addConstraint(Sketcher.Constraint("Equal", 0, 4))
sketch12.addConstraint(Sketcher.Constraint("Equal", 4, 8))
sketch12.addConstraint(Sketcher.Constraint("Equal", 8, 12))
sketch12.addConstraint(Sketcher.Constraint("Equal", 12, 14))
sketch12.addConstraint(Sketcher.Constraint("Equal", 14, 19))
sketch12.addConstraint(Sketcher.Constraint("Equal", 17, 21))
sketch12.addConstraint(Sketcher.Constraint("Equal", 19, 23))
sketch12.addConstraint(Sketcher.Constraint("Equal", 21, 25))
sketch12.addConstraint(Sketcher.Constraint("Equal", 23, 28))
sketch12.addConstraint(Sketcher.Constraint("Symmetric", 4, 1, 7, 2, -1))
sketch12.addConstraint(Sketcher.Constraint("Symmetric", 2, 2, 9, 2, -1))
sketch12.addConstraint(Sketcher.Constraint("Symmetric", 20, 2, 21, 1, -1))
sketch12.addConstraint(Sketcher.Constraint("Horizontal", 0, 1, 3, 2))
sketch12.addConstraint(Sketcher.Constraint("Horizontal", 8, 1, 11, 2))
sketch12.addConstraint(Sketcher.Constraint("Horizontal", 7, 2, 12, 1))
sketch12.addConstraint(Sketcher.Constraint("Horizontal", 11, 2, 14, 1))
sketch12.addConstraint(Sketcher.Constraint("Horizontal", 10, 2, 15, 2))
sketch12.addConstraint(Sketcher.Constraint("Horizontal", 14, 1, 18, 2))
sketch12.addConstraint(Sketcher.Constraint("Horizontal", 13, 2, 19, 1))
sketch12.addConstraint(Sketcher.Constraint("Horizontal", 3, 2, 23, 1))
sketch12.addConstraint(Sketcher.Constraint("Horizontal", 23, 1, 27, 2))
sketch12.addConstraint(Sketcher.Constraint("Horizontal", 22, 2, 28, 1))
sketch12.addConstraint(Sketcher.Constraint("Equal", 10, 6))
sketch12.addConstraint(Sketcher.Constraint("Radius", 0, 30.0))
sketch12.addConstraint(Sketcher.Constraint("Radius", 17, 89.999999))
sketch12.addConstraint(Sketcher.Constraint("DistanceX", 2, 2, 2, 1, 10.0))
sketch12.addConstraint(Sketcher.Constraint("DistanceX", -1, 1, 14, 3, 110.0))
sketch12.addConstraint(Sketcher.Constraint("DistanceX", 5, 2, -1, 1, 130.0))
sketch12.addConstraint(Sketcher.Constraint("DistanceX", 0, 3, -1, 1, 57.14))
sketch12.setExpression("Constraints[81]", "Params.sketch12_radius")
sketch12.setExpression("Constraints[82]", "Params.sketch12_radius2")
sketch12.setExpression("Constraints[83]", "Params.sketch12_width")
pad4 = doc.addObject("PartDesign::Pad", "Pad003")
body.addObject(pad4)
pad4.Profile = sketch12
pad4.setExpression("Length", "Params.pad4_length")
pad4.Reversed = True

# Sketch on XZ plane
sketch13 = doc.addObject("Sketcher::SketchObject", "Sketch012")
body.addObject(sketch13)
sketch13.AttachmentSupport = (doc.XZ_Plane, [""])
sketch13.MapMode = "FlatFace"
sketch13.AttachmentOffset = App.Placement(V(0, 0, -31), App.Rotation())
sketch13.addGeometry(Part.Circle(V(-56.866813, 0, 0), V(0, 0, 1), 4.4), False)
sketch13.addConstraint(Sketcher.Constraint("PointOnObject", 0, 3, -1))
sketch13.addConstraint(Sketcher.Constraint("Diameter", 0, 8.8))
sketch13.addConstraint(Sketcher.Constraint("DistanceX", 0, 3, -1, 1, 56.866813))
sketch13.setExpression("Constraints[1]", "Params.sketch13_diameter")
doc.recompute()
hole9 = doc.addObject("PartDesign::Hole", "Hole008")
body.addObject(hole9)
hole9.Profile = sketch13
hole9.ThreadType = "None"
hole9.setExpression("Diameter", "Params.hole9_diameter")
hole9.DepthType = "ThroughAll"
hole9.Reversed = True

# Sketch on XZ plane
sketch14 = doc.addObject("Sketcher::SketchObject", "Sketch013")
body.addObject(sketch14)
sketch14.AttachmentSupport = (doc.XZ_Plane, [""])
sketch14.MapMode = "FlatFace"
sketch14.AttachmentOffset = App.Placement(V(0, 0, -31), App.Rotation())
sketch14.addGeometry(Part.Circle(V(110, 0, 0), V(0, 0, 1), 16), False)
sketch14.addConstraint(Sketcher.Constraint("PointOnObject", 0, 3, -1))
sketch14.addConstraint(Sketcher.Constraint("Diameter", 0, 32.0))
sketch14.addConstraint(Sketcher.Constraint("DistanceX", -1, 1, 0, 3, 110.0))
sketch14.setExpression("Constraints[1]", "Params.sketch14_diameter")
pocket1 = doc.addObject("PartDesign::Pocket", "Pocket")
body.addObject(pocket1)
pocket1.Profile = sketch14
pocket1.Type = "ThroughAll"
pocket1.Reversed = True

doc.recompute()
